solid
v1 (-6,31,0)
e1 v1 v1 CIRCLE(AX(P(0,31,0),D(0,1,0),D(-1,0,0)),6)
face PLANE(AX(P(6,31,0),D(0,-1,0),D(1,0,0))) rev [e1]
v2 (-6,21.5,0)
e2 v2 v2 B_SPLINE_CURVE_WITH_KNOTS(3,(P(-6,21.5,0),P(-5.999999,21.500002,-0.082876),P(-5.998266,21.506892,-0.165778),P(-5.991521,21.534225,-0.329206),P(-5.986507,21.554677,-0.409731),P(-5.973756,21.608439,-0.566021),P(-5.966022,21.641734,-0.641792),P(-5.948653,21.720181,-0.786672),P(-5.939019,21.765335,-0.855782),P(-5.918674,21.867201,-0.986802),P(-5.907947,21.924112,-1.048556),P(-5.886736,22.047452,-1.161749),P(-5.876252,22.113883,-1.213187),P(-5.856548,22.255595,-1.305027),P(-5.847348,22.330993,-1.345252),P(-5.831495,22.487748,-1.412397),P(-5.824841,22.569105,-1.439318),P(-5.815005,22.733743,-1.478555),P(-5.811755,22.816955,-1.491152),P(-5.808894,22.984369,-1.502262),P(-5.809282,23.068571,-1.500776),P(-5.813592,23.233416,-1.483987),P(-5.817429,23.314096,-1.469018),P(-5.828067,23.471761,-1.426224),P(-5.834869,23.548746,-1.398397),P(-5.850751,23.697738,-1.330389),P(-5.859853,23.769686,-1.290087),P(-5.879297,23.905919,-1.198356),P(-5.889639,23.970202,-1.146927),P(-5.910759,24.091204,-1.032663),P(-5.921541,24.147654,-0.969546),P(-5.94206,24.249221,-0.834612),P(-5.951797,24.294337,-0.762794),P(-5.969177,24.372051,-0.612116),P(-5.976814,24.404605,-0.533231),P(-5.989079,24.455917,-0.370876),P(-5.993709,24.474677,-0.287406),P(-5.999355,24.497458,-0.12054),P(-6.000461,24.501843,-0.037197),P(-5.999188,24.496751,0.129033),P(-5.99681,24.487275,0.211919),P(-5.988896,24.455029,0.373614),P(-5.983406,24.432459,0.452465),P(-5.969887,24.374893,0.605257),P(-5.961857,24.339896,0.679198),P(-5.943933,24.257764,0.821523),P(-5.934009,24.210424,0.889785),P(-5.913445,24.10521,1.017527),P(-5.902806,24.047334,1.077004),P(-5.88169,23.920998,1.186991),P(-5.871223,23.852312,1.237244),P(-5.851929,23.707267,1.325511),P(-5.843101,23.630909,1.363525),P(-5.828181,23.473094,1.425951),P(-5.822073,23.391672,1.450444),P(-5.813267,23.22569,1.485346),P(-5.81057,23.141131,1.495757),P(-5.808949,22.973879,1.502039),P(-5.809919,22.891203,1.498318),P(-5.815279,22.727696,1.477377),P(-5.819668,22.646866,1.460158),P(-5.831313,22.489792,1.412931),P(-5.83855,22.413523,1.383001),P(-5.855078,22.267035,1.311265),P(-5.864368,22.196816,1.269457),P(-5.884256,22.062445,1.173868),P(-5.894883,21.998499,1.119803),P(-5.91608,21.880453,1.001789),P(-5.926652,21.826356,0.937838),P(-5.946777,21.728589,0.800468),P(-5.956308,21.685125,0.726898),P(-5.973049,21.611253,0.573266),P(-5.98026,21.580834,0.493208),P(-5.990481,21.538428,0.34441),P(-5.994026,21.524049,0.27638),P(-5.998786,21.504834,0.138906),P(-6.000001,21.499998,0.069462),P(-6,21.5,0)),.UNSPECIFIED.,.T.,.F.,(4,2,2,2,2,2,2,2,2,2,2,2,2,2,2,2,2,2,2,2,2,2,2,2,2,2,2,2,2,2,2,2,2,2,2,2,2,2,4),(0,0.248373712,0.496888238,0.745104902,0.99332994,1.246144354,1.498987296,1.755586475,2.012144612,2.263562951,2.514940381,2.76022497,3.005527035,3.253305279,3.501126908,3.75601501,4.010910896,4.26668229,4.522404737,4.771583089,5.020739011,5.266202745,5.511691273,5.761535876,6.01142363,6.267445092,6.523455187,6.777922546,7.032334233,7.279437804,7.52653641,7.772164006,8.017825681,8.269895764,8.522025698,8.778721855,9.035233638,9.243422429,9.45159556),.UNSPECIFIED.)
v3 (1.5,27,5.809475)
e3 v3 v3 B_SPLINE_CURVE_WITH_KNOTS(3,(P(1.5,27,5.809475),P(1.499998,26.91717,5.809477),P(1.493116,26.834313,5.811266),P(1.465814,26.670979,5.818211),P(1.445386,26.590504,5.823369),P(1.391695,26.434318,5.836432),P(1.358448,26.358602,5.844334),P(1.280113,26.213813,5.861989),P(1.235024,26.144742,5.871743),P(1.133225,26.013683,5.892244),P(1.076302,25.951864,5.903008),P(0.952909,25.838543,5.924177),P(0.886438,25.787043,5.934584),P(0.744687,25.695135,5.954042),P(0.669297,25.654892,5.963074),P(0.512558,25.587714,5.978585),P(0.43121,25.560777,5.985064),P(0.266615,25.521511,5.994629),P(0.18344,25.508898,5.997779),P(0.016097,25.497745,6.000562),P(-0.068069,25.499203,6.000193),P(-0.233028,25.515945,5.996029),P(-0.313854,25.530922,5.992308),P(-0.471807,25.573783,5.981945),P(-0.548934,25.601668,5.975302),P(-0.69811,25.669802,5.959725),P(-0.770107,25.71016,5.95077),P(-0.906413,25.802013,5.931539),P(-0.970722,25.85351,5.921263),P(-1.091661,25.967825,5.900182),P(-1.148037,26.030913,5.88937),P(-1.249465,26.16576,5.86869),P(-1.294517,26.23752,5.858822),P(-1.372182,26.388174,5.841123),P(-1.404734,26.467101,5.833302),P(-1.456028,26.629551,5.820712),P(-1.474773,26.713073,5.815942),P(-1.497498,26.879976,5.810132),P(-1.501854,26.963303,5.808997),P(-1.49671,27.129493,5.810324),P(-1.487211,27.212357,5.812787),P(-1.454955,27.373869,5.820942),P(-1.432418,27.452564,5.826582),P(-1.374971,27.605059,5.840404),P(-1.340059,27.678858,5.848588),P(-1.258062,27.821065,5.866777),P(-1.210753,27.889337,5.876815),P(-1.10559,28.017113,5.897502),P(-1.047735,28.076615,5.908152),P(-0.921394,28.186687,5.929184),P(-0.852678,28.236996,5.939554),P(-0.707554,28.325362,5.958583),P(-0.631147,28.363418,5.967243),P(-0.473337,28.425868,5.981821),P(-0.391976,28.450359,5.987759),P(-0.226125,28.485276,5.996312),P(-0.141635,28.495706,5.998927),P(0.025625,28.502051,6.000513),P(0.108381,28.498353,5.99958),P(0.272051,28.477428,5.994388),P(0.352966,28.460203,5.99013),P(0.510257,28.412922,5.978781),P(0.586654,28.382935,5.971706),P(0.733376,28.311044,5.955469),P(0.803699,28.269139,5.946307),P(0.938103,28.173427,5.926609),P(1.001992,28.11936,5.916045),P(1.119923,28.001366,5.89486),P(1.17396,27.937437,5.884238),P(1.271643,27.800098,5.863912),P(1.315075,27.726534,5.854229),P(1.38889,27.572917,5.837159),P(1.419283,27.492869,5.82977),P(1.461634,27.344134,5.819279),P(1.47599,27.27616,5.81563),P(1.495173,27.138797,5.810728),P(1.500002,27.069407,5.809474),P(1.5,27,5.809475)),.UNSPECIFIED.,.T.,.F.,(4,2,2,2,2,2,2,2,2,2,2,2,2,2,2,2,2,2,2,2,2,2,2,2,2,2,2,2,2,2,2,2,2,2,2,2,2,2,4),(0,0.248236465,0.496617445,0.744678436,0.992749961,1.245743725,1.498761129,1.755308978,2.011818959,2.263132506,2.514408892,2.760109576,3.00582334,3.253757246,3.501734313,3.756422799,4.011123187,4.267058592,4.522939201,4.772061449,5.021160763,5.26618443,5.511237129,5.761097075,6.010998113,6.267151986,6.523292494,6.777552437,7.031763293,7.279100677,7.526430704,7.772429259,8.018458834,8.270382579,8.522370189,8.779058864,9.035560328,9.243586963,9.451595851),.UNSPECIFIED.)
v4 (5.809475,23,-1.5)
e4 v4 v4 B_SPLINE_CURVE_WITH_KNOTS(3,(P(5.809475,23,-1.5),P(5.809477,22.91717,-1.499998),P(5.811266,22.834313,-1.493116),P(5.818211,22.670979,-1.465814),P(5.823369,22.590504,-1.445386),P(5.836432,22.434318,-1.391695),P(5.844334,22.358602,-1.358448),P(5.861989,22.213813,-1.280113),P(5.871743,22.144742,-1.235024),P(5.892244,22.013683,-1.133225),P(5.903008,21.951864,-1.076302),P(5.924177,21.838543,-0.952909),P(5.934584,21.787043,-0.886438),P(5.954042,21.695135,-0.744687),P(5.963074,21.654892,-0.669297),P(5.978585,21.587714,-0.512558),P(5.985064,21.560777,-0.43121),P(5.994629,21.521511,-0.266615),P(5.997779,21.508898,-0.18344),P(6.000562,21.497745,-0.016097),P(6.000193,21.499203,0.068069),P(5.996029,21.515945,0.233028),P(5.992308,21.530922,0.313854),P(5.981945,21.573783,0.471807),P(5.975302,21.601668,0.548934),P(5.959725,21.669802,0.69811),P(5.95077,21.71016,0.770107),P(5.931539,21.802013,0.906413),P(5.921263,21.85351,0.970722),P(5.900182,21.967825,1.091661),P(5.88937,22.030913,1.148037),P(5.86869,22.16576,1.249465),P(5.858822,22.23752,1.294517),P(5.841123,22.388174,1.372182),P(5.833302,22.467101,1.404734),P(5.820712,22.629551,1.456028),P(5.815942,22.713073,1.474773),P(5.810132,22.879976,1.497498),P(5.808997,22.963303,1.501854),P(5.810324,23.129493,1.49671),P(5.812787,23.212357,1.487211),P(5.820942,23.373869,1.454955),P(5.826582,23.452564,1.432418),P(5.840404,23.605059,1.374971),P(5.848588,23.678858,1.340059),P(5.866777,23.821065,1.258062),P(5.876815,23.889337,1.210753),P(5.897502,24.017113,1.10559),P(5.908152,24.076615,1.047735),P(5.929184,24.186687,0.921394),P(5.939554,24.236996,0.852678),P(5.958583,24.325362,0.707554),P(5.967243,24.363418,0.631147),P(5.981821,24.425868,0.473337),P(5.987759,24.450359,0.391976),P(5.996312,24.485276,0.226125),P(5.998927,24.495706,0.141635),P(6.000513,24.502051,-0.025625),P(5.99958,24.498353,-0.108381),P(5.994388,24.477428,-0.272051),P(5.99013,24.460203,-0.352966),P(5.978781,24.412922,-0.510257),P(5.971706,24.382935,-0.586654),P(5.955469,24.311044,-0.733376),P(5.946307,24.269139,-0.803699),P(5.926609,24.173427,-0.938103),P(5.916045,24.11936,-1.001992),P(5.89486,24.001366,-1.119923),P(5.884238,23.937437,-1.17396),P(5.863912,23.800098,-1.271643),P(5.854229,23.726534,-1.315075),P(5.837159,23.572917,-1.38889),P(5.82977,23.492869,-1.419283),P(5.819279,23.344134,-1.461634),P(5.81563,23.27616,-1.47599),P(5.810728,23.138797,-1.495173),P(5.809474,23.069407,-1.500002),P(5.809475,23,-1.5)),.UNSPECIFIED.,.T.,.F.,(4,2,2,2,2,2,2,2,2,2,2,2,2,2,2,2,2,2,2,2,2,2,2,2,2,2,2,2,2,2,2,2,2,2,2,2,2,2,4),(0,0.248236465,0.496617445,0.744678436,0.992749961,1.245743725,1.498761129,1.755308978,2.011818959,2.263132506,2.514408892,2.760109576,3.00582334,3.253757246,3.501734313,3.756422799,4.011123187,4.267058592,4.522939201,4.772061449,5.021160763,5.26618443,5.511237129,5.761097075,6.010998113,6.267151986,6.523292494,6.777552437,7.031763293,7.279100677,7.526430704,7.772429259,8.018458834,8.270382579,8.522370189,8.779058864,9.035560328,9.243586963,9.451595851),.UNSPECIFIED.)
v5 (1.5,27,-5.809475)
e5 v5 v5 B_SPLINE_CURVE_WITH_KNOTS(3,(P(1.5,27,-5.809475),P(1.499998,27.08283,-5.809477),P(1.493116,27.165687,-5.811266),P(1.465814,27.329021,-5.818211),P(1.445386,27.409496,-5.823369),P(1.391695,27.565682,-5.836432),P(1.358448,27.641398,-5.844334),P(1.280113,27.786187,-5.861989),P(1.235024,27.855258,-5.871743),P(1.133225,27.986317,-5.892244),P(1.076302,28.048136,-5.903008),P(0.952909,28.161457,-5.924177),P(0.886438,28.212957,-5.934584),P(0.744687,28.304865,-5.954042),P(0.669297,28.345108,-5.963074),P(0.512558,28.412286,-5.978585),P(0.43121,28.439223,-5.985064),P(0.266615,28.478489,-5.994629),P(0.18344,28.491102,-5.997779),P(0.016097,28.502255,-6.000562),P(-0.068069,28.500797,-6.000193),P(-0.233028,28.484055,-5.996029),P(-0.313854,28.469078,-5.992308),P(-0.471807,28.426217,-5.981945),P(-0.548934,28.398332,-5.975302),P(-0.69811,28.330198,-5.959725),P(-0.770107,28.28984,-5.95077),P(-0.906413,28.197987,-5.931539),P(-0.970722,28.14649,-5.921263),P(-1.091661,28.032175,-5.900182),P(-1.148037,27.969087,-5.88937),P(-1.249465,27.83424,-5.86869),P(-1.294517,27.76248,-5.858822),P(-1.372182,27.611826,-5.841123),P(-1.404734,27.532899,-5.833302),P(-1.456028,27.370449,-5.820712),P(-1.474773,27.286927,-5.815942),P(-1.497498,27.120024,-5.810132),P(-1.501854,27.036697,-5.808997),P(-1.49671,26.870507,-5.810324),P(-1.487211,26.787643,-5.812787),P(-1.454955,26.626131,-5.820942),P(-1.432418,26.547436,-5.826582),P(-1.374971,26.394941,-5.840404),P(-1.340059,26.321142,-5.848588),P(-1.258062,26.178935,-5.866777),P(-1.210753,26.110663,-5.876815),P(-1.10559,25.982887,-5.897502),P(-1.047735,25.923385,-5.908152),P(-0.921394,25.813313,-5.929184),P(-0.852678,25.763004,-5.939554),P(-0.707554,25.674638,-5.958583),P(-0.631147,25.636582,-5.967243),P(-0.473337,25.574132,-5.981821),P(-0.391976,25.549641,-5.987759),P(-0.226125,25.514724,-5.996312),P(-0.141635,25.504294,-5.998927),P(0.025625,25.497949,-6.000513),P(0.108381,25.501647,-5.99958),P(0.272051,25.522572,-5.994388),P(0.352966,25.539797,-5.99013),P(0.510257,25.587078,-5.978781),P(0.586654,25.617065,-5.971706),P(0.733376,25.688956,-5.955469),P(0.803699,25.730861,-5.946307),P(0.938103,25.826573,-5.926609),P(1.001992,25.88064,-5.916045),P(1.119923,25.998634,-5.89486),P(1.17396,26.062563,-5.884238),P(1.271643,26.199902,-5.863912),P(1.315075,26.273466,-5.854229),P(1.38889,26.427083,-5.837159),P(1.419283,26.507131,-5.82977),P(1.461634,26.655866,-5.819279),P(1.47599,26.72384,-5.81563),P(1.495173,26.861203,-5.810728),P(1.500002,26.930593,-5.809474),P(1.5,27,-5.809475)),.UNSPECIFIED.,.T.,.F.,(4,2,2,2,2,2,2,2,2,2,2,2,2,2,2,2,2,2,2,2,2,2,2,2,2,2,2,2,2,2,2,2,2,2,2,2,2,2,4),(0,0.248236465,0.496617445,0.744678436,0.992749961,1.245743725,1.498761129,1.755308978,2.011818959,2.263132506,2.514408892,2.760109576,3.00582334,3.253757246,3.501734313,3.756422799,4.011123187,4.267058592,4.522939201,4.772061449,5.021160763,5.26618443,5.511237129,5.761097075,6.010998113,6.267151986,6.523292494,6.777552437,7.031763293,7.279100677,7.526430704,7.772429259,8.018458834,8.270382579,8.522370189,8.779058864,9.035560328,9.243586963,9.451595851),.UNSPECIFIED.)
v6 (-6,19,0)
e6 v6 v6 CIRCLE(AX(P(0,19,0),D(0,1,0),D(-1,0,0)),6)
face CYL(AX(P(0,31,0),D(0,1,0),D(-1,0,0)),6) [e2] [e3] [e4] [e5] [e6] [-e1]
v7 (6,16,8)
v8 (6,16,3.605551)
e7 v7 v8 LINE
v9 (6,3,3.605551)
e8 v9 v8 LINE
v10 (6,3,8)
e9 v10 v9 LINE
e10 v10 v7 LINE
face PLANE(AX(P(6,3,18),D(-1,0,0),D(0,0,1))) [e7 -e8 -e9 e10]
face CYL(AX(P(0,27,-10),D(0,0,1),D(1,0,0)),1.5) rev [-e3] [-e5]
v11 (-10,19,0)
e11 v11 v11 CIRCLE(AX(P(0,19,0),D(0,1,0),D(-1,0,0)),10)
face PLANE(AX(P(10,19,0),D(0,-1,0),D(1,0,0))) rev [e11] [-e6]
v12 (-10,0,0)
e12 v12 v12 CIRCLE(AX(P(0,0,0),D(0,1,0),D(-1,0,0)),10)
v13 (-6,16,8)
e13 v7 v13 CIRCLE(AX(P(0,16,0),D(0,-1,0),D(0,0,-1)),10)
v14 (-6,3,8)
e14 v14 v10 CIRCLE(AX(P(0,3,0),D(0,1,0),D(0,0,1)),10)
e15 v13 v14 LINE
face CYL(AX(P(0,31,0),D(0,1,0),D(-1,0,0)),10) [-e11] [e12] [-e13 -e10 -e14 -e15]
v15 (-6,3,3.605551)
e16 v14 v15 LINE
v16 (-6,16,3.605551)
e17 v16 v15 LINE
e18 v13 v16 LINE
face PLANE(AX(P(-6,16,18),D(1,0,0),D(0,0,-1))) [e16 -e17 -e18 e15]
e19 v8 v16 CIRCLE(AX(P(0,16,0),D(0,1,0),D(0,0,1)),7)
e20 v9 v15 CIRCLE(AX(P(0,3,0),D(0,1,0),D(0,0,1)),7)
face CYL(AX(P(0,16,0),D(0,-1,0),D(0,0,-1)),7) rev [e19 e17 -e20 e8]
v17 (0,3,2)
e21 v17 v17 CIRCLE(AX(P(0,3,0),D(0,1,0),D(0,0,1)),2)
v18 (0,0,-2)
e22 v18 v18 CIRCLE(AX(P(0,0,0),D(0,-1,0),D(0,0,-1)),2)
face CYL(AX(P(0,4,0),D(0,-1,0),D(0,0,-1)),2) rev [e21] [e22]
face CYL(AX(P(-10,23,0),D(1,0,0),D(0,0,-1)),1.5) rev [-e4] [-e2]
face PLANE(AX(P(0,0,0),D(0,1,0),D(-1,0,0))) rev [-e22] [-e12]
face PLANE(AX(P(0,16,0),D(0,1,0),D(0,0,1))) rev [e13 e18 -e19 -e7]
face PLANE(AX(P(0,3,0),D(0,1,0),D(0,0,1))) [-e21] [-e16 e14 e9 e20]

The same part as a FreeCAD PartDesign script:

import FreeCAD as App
import Part
import Sketcher
from FreeCAD import Vector

doc = App.newDocument("Part")
body = doc.addObject("PartDesign::Body", "Body")

# Sketch on XY plane
sketch1 = body.newObject("Sketcher::SketchObject", "Sketch")
sketch1.AttachmentSupport = (doc.getObject("XY_Plane"), [""])
sketch1.MapMode = "FlatFace"
sketch1.addGeometry([
    Part.LineSegment(Vector(0, 0, 0), Vector(10, 0, 0)),  # 0
    Part.LineSegment(Vector(10, 0, 0), Vector(10, 19, 0)),  # 1
    Part.LineSegment(Vector(10, 19, 0), Vector(6, 19, 0)),  # 2
    Part.LineSegment(Vector(6, 19, 0), Vector(6, 31, 0)),  # 3
    Part.LineSegment(Vector(6, 31, 0), Vector(0, 31, 0)),  # 4
    Part.LineSegment(Vector(0, 31, 0), Vector(0, 0, 0)),  # 5
], False)
sketch1.addConstraint([
    Sketcher.Constraint("Coincident", 0, 2, 1, 1),
    Sketcher.Constraint("Coincident", 1, 2, 2, 1),
    Sketcher.Constraint("Coincident", 2, 2, 3, 1),
    Sketcher.Constraint("Coincident", 3, 2, 4, 1),
    Sketcher.Constraint("Coincident", 4, 2, 5, 1),
    Sketcher.Constraint("Coincident", 5, 2, 0, 1),
    Sketcher.Constraint("Horizontal", 0),
    Sketcher.Constraint("Vertical", 1),
    Sketcher.Constraint("Horizontal", 2),
    Sketcher.Constraint("Vertical", 3),
    Sketcher.Constraint("Horizontal", 4),
    Sketcher.Constraint("Vertical", 5),
    Sketcher.Constraint("Coincident", 5, 2, -1, 1),
    Sketcher.Constraint("DistanceX", 0, 1, 0, 2, 10.0),
    Sketcher.Constraint("DistanceX", 2, 2, 2, 1, 4.0),
    Sketcher.Constraint("DistanceY", 1, 1, 1, 2, 19.0),
    Sketcher.Constraint("DistanceY", 3, 1, 3, 2, 12.0),
])
revolution = body.newObject("PartDesign::Revolution", "Revolution")
revolution.Profile = sketch1
revolution.ReferenceAxis = (sketch1, ["V_Axis"])
revolution.Angle = 360

# Sketch on XZ plane
sketch2 = body.newObject("Sketcher::SketchObject", "Sketch001")
sketch2.AttachmentSupport = (doc.getObject("XZ_Plane"), [""])
sketch2.MapMode = "FlatFace"
sketch2.AttachmentOffset = App.Placement(Vector(0, 0, -3), App.Rotation())
sketch2.addGeometry(Part.Circle(Vector(0, 0, 0), Vector(0, 0, 1), 7), False)
sketch2.addConstraint([
    Sketcher.Constraint("Coincident", 0, 3, -1, 1),
    Sketcher.Constraint("Diameter", 0, 14.0),
])
pocket1 = body.newObject("PartDesign::Pocket", "Pocket")
pocket1.Profile = sketch2
pocket1.Length = 13

# Sketch on XY plane
sketch3 = body.newObject("Sketcher::SketchObject", "Sketch002")
sketch3.AttachmentSupport = (doc.getObject("XY_Plane"), [""])
sketch3.MapMode = "FlatFace"
sketch3.addGeometry([
    Part.LineSegment(Vector(6, 3, 0), Vector(6, 16, 0)),
    Part.LineSegment(Vector(6, 16, 0), Vector(-6, 16, 0)),
    Part.LineSegment(Vector(-6, 16, 0), Vector(-6, 3, 0)),
    Part.LineSegment(Vector(-6, 3, 0), Vector(6, 3, 0)),
], False)
sketch3.addConstraint([
    Sketcher.Constraint("Coincident", 0, 2, 1, 1),
    Sketcher.Constraint("Coincident", 1, 2, 2, 1),
    Sketcher.Constraint("Coincident", 2, 2, 3, 1),
    Sketcher.Constraint("Coincident", 3, 2, 0, 1),
    Sketcher.Constraint("Vertical", 0),
    Sketcher.Constraint("Horizontal", 1),
    Sketcher.Constraint("Vertical", 2),
    Sketcher.Constraint("Horizontal", 3),
    Sketcher.Constraint("DistanceX", 1, 2, 1, 1, 12.0),
    Sketcher.Constraint("DistanceY", 0, 1, 0, 2, 13.0),
    Sketcher.Constraint("DistanceX", -1, 1, 0, 2, 6.0),
    Sketcher.Constraint("DistanceY", -1, 1, 0, 2, 16.0),
])
pocket2 = body.newObject("PartDesign::Pocket", "Pocket001")
pocket2.Profile = sketch3
pocket2.Length = 18
pocket2.Reversed = True

# Sketch on XY plane
sketch4 = body.newObject("Sketcher::SketchObject", "Sketch003")
sketch4.AttachmentSupport = (doc.getObject("XY_Plane"), [""])
sketch4.MapMode = "FlatFace"
sketch4.addGeometry(Part.Circle(Vector(0, 27, 0), Vector(0, 0, 1), 1.5), False)
sketch4.addConstraint([
    Sketcher.Constraint("PointOnObject", 0, 3, -2),
    Sketcher.Constraint("Diameter", 0, 3.0),
    Sketcher.Constraint("DistanceY", -1, 1, 0, 3, 27.0),
])
pocket3 = body.newObject("PartDesign::Pocket", "Pocket002")
pocket3.Profile = sketch4
pocket3.Type = "ThroughAll"
pocket3.Midplane = True

# Sketch on XZ plane
sketch5 = body.newObject("Sketcher::SketchObject", "Sketch004")
sketch5.AttachmentSupport = (doc.getObject("XZ_Plane"), [""])
sketch5.MapMode = "FlatFace"
sketch5.addGeometry(Part.Circle(Vector(0, 0, 0), Vector(0, 0, 1), 2), False)
sketch5.addConstraint([
    Sketcher.Constraint("Coincident", 0, 3, -1, 1),
    Sketcher.Constraint("Diameter", 0, 4.0),
])
pocket4 = body.newObject("PartDesign::Pocket", "Pocket003")
pocket4.Profile = sketch5
pocket4.Length = 4

# Sketch on YZ plane
sketch6 = body.newObject("Sketcher::SketchObject", "Sketch005")
sketch6.AttachmentSupport = (doc.getObject("YZ_Plane"), [""])
sketch6.MapMode = "FlatFace"
sketch6.addGeometry(Part.Circle(Vector(23, 0, 0), Vector(0, 0, 1), 1.5), False)
sketch6.addConstraint([
    Sketcher.Constraint("PointOnObject", 0, 3, -1),
    Sketcher.Constraint("Diameter", 0, 3.0),
    Sketcher.Constraint("DistanceX", -1, 1, 0, 3, 23.0),
])
pocket5 = body.newObject("PartDesign::Pocket", "Pocket004")
pocket5.Profile = sketch6
pocket5.Type = "ThroughAll"
pocket5.Midplane = True

doc.recompute()
